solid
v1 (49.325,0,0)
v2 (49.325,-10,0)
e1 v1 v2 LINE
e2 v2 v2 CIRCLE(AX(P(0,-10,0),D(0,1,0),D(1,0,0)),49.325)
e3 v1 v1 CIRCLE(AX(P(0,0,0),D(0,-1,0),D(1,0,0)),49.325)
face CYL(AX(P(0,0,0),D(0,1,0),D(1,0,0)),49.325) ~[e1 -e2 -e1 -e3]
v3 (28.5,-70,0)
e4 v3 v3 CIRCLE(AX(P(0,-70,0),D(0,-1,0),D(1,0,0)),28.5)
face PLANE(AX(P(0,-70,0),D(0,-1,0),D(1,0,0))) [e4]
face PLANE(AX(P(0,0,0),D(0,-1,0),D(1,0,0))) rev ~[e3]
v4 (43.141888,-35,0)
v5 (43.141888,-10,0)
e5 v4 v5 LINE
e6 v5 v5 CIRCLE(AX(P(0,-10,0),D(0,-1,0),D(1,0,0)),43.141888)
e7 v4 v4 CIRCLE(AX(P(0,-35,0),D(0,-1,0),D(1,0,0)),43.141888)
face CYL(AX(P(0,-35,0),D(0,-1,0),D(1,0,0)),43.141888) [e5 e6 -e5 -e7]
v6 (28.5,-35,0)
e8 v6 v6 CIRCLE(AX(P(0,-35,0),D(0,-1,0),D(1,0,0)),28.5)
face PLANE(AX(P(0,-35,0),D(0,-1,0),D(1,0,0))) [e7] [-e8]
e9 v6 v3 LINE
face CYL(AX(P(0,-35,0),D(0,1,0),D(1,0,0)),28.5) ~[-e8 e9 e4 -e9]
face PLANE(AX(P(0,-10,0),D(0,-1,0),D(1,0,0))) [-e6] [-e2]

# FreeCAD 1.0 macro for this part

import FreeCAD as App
import Part
import Sketcher

doc = App.newDocument("Part")
body = doc.addObject("PartDesign::Body", "Body")

# Sketch on XZ plane
sketch1 = body.newObject("Sketcher::SketchObject", "Sketch")
sketch1.AttachmentSupport = (doc.getObject("XZ_Plane"), [""])
sketch1.MapMode = "FlatFace"
sketch1.addGeometry(Part.Circle(App.Vector(0, 0, 0), App.Vector(0, 0, 1), 49), False)
sketch1.addConstraint(Sketcher.Constraint("Coincident", 0, 3, -1, 1))
sketch1.addConstraint(Sketcher.Constraint("Diameter", 0, 98.65))
pad1 = body.newObject("PartDesign::Pad", "Pad")
pad1.Profile = sketch1
pad1.Length = 35

# Sketch on XZ plane
sketch2 = body.newObject("Sketcher::SketchObject", "Sketch001")
sketch2.AttachmentSupport = (doc.getObject("XZ_Plane"), [""])
sketch2.MapMode = "FlatFace"
sketch2.AttachmentOffset = App.Placement(App.Vector(0, 0, 35), App.Rotation())
sketch2.addGeometry(Part.Circle(App.Vector(0, 0, 0), App.Vector(0, 0, 1), 51), False)
sketch2.addGeometry(Part.Circle(App.Vector(0, 0, 0), App.Vector(0, 0, 1), 43), False)
sketch2.addConstraint(Sketcher.Constraint("Coincident", 0, 3, -1, 1))
sketch2.addConstraint(Sketcher.Constraint("Coincident", 1, 3, -1, 1))
sketch2.addConstraint(Sketcher.Constraint("Diameter", 0, 101.898992))
sketch2.addConstraint(Sketcher.Constraint("Diameter", 1, 86.283776))
pocket1 = body.newObject("PartDesign::Pocket", "Pocket")
pocket1.Profile = sketch2
pocket1.Length = 25

# Sketch on XZ plane
sketch3 = body.newObject("Sketcher::SketchObject", "Sketch002")
sketch3.AttachmentSupport = (doc.getObject("XZ_Plane"), [""])
sketch3.MapMode = "FlatFace"
sketch3.AttachmentOffset = App.Placement(App.Vector(0, 0, 35), App.Rotation())
sketch3.addGeometry(Part.Circle(App.Vector(0, 0, 0), App.Vector(0, 0, 1), 28), False)
sketch3.addConstraint(Sketcher.Constraint("Coincident", 0, 3, -1, 1))
sketch3.addConstraint(Sketcher.Constraint("Diameter", 0, 57.0))
pad2 = body.newObject("PartDesign::Pad", "Pad001")
pad2.Profile = sketch3
pad2.Length = 35

doc.recompute()
